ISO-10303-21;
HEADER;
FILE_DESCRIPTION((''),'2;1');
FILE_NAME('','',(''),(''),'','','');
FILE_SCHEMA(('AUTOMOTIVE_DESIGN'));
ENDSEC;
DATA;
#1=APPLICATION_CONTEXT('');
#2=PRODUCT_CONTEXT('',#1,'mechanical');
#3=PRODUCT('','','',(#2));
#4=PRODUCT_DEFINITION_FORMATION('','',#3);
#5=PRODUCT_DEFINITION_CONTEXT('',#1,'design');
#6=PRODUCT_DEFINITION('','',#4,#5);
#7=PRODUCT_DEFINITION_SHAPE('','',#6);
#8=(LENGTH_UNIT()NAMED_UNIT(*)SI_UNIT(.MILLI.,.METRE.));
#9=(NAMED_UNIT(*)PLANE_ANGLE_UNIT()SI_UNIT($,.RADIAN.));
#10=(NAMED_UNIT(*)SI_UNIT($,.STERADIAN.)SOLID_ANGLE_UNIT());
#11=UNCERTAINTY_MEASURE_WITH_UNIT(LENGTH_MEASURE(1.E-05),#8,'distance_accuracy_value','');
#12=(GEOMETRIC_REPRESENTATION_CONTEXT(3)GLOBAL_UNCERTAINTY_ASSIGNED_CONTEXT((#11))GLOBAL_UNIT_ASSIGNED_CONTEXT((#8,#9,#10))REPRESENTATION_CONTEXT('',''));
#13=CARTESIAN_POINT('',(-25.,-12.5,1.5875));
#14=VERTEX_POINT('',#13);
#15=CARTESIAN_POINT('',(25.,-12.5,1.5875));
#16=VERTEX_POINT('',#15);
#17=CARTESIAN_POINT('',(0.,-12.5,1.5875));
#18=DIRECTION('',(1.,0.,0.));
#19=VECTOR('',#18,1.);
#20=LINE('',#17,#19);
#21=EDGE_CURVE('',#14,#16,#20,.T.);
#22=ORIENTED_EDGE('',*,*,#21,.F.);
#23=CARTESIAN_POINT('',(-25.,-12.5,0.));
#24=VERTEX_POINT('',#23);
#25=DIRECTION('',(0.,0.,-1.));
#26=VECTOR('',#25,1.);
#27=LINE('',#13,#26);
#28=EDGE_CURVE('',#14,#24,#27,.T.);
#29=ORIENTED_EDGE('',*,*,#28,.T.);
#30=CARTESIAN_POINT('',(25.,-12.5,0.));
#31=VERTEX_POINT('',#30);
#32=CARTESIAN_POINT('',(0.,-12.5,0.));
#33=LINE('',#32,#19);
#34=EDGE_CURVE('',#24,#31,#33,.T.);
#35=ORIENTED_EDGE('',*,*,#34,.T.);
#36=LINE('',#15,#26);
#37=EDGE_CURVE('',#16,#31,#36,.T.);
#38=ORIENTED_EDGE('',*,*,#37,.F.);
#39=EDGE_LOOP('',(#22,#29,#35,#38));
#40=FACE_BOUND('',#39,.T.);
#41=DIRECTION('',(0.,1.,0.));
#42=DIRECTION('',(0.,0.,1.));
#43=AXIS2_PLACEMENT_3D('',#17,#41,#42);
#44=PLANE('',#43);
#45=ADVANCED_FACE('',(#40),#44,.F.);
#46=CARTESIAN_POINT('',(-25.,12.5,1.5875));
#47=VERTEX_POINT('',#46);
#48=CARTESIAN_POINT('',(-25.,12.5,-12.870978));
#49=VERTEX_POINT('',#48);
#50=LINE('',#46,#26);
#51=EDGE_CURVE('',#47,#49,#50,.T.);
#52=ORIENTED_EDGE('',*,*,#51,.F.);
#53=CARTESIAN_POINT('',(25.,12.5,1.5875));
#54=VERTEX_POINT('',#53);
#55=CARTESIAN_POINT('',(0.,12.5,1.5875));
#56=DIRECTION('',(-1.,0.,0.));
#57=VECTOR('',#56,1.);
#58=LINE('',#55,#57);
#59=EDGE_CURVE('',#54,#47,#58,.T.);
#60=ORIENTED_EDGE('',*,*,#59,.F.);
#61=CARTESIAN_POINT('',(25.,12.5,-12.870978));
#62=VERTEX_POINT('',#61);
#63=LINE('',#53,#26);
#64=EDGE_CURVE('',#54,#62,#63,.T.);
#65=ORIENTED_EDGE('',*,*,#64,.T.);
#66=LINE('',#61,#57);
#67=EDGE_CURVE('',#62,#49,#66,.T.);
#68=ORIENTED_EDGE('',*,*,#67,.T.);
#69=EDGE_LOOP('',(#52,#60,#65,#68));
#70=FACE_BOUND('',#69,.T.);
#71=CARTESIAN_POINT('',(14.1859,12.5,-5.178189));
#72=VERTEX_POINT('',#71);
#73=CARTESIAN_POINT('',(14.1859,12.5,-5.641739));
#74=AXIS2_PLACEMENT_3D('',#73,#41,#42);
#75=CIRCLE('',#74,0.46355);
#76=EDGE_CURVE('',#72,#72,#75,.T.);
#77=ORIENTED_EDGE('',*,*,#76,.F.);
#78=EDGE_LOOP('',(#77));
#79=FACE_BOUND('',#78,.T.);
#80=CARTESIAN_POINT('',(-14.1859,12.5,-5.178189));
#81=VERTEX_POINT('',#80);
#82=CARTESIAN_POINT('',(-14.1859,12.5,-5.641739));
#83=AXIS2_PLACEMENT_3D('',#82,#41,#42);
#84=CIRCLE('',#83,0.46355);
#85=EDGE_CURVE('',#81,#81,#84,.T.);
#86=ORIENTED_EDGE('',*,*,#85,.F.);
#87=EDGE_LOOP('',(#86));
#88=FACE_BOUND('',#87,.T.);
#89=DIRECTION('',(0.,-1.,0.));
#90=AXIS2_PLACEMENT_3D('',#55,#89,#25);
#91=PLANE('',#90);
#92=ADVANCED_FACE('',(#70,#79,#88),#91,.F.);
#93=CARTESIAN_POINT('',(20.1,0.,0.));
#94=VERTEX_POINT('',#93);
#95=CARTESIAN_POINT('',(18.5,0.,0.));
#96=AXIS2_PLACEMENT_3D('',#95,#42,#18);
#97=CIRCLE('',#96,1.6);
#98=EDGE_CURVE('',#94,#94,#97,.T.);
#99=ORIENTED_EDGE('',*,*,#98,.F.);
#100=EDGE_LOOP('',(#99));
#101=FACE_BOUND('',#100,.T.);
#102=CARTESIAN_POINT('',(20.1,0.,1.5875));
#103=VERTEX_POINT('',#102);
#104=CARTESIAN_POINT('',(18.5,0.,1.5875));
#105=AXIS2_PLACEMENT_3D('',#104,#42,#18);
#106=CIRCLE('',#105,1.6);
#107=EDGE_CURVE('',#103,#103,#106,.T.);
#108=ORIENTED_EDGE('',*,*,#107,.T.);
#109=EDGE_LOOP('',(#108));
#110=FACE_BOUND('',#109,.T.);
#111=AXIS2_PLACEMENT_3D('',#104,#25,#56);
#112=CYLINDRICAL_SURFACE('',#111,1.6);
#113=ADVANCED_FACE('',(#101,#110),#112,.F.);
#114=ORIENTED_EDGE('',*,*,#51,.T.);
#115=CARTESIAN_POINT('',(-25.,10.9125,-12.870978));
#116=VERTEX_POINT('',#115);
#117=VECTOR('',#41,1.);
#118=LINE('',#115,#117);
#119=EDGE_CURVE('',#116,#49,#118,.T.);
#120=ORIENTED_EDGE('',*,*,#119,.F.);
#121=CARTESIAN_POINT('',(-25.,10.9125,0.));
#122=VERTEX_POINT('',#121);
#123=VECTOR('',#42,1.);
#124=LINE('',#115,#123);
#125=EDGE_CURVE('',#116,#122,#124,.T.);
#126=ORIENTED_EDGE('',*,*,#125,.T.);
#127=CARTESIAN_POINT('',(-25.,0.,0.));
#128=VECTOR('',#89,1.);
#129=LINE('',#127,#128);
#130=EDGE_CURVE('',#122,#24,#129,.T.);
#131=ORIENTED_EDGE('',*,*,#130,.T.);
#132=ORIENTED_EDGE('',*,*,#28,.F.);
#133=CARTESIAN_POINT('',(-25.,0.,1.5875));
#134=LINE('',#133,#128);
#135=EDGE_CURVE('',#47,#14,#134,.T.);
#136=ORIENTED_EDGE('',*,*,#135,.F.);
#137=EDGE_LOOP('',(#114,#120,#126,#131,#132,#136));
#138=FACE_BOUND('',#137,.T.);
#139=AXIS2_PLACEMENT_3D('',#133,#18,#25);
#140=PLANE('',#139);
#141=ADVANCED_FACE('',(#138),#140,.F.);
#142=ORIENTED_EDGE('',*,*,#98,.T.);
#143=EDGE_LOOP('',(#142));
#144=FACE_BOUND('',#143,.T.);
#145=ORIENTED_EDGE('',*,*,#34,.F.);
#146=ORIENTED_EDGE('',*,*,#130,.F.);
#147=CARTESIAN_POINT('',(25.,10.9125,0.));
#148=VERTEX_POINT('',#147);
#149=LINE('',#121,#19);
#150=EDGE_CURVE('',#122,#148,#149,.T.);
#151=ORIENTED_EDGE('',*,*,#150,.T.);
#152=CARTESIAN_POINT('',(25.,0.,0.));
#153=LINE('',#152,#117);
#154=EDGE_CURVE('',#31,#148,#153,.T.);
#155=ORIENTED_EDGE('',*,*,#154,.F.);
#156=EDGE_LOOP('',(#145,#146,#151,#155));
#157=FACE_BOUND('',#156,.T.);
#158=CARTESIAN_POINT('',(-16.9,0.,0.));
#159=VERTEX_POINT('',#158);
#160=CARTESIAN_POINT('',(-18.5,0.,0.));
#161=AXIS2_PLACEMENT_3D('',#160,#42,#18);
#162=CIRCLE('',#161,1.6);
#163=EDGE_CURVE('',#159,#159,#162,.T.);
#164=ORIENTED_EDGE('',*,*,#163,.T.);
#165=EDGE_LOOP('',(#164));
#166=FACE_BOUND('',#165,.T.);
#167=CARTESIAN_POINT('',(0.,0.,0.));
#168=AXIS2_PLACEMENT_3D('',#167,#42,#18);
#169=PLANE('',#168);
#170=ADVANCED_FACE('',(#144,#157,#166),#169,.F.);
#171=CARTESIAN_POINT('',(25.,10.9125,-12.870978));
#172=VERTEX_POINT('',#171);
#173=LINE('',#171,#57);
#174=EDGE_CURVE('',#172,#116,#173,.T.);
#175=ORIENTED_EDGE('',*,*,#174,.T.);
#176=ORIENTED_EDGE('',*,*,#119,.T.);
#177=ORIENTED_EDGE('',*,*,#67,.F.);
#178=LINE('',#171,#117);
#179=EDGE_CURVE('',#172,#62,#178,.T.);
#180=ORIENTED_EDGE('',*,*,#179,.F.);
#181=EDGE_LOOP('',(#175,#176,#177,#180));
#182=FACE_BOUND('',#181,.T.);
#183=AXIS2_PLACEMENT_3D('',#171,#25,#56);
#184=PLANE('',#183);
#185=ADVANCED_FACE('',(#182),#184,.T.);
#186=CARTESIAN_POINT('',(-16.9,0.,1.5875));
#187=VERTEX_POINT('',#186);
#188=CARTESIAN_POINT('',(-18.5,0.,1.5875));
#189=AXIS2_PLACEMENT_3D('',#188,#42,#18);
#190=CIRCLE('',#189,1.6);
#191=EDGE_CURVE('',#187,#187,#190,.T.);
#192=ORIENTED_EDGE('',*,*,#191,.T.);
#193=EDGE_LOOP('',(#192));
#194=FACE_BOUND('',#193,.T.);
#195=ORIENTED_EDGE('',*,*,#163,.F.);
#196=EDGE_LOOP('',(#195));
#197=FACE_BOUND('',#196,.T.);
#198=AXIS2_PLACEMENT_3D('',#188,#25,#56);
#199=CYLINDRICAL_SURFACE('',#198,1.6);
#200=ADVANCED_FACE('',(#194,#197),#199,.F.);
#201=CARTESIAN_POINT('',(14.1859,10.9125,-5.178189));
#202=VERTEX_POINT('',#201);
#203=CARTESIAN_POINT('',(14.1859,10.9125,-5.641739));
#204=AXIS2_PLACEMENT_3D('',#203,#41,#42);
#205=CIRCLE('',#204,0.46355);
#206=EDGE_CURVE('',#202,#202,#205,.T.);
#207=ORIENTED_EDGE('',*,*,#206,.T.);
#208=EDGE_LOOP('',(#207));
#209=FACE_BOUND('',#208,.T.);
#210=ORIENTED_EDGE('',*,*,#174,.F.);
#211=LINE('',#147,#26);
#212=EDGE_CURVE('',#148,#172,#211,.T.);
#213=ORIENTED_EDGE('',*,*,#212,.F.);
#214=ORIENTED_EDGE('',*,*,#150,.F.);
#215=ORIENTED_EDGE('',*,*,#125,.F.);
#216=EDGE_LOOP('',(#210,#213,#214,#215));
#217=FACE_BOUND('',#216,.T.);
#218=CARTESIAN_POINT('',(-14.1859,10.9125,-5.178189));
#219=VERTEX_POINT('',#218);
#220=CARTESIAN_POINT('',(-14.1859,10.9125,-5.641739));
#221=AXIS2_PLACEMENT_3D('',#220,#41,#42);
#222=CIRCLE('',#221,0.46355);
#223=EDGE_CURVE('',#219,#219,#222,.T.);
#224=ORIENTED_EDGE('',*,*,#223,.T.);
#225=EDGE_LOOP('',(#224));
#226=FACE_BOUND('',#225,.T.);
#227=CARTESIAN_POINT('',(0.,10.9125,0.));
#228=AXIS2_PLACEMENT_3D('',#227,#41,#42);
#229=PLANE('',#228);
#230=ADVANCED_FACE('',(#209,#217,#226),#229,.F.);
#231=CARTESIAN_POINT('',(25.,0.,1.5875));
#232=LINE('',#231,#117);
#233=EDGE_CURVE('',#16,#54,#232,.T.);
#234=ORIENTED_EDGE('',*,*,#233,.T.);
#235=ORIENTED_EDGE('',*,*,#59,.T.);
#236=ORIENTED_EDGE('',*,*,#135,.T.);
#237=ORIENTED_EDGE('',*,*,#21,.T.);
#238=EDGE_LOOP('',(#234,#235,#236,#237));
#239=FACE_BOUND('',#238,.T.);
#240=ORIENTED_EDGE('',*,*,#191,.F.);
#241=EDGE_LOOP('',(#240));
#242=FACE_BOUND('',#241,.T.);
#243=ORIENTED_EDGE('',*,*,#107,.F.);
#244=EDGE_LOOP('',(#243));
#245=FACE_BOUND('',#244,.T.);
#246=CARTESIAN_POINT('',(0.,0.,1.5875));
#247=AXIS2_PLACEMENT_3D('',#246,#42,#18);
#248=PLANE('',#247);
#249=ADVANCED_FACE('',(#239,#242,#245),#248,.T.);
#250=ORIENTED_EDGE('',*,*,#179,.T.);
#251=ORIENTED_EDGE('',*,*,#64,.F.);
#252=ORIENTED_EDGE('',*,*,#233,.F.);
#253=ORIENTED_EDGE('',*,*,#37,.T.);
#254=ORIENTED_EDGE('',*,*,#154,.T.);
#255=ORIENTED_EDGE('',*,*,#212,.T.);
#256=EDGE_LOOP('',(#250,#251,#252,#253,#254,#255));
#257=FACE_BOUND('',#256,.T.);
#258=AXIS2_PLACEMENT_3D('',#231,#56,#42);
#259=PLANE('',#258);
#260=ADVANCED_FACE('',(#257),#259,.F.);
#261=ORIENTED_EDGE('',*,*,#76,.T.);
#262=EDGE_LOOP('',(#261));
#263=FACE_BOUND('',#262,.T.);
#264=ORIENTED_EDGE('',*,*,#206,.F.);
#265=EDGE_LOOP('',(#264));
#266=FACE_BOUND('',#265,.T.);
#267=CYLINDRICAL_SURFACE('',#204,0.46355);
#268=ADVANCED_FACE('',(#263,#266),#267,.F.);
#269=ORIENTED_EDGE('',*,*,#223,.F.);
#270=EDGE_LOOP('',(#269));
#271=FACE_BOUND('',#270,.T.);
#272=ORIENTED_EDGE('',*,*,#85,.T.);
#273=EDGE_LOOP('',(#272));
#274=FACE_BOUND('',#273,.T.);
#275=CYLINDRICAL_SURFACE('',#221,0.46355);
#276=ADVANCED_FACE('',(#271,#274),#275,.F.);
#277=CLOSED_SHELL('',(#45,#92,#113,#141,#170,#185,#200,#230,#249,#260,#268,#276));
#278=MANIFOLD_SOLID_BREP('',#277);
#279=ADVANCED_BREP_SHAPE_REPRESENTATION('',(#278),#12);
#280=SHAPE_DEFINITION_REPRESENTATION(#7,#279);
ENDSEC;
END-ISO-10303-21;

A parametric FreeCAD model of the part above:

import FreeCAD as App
import Part
import Sketcher


def add_polygon(sketch, points):
    """Adds a closed chain of lines whose ends are joined by coincident constraints."""
    first, n = sketch.GeometryCount, len(points)
    for a, b in zip(points, points[1:] + points[:1]):
        sketch.addGeometry(Part.LineSegment(App.Vector(*a, 0), App.Vector(*b, 0)), False)
    for i in range(n):
        sketch.addConstraint(Sketcher.Constraint("Coincident", first + i, 2, first + (i + 1) % n, 1))

doc = App.newDocument("Part")
body = doc.addObject("PartDesign::Body", "Body")

# Sketch on XY plane
sketch1 = body.newObject("Sketcher::SketchObject", "Sketch")
sketch1.AttachmentSupport = (doc.getObject("XY_Plane"), [""])
sketch1.MapMode = "FlatFace"
add_polygon(sketch1, [(-25, 12.5), (-25, -12.5), (25, -12.5), (25, 12.5)])  # lines 0-3
sketch1.addGeometry(Part.Circle(App.Vector(-18.5, 0, 0), App.Vector(0, 0, 1), 1.6), False)  # 4
sketch1.addGeometry(Part.Circle(App.Vector(18.5, 0, 0), App.Vector(0, 0, 1), 1.6), False)  # 5
sketch1.addConstraint([
    Sketcher.Constraint("Vertical", 0),
    Sketcher.Constraint("Horizontal", 1),
    Sketcher.Constraint("Vertical", 2),
    Sketcher.Constraint("Horizontal", 3),
    Sketcher.Constraint("Equal", 4, 5),
    Sketcher.Constraint("Symmetric", 4, 3, 5, 3, -1, 1),
    Sketcher.Constraint("Symmetric", 0, 2, 2, 2, -1, 1),
    Sketcher.Constraint("PointOnObject", 4, 3, -1),
    Sketcher.Constraint("Diameter", 4, 3.2),
    Sketcher.Constraint("DistanceX", 1, 1, 1, 2, 50.0),
    Sketcher.Constraint("DistanceY", 0, 2, 0, 1, 25.0),
    Sketcher.Constraint("DistanceX", 4, 3, 5, 3, 37.0),
])
pad1 = body.newObject("PartDesign::Pad", "Pad")
pad1.Profile = sketch1
pad1.Length = 1.5875

# Sketch on XZ plane
sketch2 = body.newObject("Sketcher::SketchObject", "Sketch001")
sketch2.AttachmentSupport = (doc.getObject("XZ_Plane"), [""])
sketch2.MapMode = "FlatFace"
sketch2.AttachmentOffset = App.Placement(App.Vector(0, 0, -12.5), App.Rotation())
add_polygon(sketch2, [(-25, -13), (-25, 0), (25, 0), (25, -13)])  # lines 0-3
sketch2.addConstraint([
    Sketcher.Constraint("Vertical", 0),
    Sketcher.Constraint("Horizontal", 1),
    Sketcher.Constraint("Vertical", 2),
    Sketcher.Constraint("Horizontal", 3),
    Sketcher.Constraint("Symmetric", 0, 2, 1, 2, -1, 1),
    Sketcher.Constraint("DistanceX", 1, 1, 1, 2, 50.0),
    Sketcher.Constraint("DistanceY", 0, 1, 0, 2, 12.870978),
])
pad2 = body.newObject("PartDesign::Pad", "Pad001")
pad2.Profile = sketch2
pad2.Length = 1.5875

# Sketch on XZ plane
sketch3 = body.newObject("Sketcher::SketchObject", "Sketch002")
sketch3.AttachmentSupport = (doc.getObject("XZ_Plane"), [""])
sketch3.MapMode = "FlatFace"
sketch3.AttachmentOffset = App.Placement(App.Vector(0, 0, -12.5), App.Rotation())
sketch3.addGeometry([
    Part.Circle(App.Vector(-14.19, -5.64, 0), App.Vector(0, 0, 1), 0.46),
    Part.Circle(App.Vector(14.19, -5.64, 0), App.Vector(0, 0, 1), 0.46),
], False)
sketch3.addConstraint([
    Sketcher.Constraint("Equal", 0, 1),
    Sketcher.Constraint("Symmetric", 0, 3, 1, 3, -2),
    Sketcher.Constraint("Diameter", 0, 0.9271),
    Sketcher.Constraint("DistanceX", 0, 3, -1, 1, 14.1859),
    Sketcher.Constraint("DistanceY", 0, 3, -1, 1, 5.641739),
])
pocket1 = body.newObject("PartDesign::Pocket", "Pocket")
pocket1.Profile = sketch3
pocket1.Length = 1.5875
pocket1.Reversed = True

doc.recompute()
